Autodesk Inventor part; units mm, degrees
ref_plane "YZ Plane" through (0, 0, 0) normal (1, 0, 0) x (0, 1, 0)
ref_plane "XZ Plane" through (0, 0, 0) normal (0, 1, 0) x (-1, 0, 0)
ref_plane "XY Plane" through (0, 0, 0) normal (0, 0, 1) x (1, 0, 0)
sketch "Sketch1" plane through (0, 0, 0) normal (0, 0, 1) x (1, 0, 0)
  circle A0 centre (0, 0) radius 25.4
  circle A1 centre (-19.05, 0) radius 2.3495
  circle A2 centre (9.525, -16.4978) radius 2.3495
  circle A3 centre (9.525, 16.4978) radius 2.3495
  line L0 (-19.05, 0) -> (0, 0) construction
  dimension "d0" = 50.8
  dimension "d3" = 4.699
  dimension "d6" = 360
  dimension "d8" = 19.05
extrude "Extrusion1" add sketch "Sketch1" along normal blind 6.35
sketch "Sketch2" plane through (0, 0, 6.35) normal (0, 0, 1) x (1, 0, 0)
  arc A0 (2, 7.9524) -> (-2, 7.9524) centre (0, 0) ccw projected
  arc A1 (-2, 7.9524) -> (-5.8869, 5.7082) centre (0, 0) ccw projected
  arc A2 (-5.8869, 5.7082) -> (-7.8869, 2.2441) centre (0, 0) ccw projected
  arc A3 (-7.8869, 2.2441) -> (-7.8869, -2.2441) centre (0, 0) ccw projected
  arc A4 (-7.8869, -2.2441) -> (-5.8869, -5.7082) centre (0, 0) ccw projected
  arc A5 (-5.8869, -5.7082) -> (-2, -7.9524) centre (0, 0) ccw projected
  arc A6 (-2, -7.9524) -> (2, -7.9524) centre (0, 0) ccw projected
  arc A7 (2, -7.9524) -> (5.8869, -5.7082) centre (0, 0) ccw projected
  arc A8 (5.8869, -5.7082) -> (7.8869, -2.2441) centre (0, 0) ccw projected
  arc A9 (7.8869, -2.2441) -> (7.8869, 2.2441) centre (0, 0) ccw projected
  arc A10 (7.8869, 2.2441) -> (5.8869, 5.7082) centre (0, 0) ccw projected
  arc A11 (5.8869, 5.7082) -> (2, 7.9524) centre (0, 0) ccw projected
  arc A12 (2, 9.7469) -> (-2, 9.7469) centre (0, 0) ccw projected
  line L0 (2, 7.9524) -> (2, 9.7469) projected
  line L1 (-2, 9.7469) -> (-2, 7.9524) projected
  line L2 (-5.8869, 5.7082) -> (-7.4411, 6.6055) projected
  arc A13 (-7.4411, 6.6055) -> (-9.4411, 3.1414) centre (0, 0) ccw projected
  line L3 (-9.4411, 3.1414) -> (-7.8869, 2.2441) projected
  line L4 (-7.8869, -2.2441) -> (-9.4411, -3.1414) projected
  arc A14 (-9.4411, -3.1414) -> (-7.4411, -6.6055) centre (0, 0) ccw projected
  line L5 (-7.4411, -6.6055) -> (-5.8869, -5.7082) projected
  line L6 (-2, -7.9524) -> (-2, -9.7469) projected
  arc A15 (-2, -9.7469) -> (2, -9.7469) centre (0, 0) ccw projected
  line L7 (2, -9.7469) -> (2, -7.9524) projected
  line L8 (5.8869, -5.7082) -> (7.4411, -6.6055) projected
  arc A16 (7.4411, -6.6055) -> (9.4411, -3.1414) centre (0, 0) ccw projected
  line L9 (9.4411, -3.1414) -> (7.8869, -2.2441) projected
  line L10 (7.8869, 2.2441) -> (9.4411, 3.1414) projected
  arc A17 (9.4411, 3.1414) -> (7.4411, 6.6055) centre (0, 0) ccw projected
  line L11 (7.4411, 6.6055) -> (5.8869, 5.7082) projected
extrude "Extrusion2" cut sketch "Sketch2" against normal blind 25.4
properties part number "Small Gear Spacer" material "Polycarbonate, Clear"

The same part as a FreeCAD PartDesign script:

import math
import FreeCAD as App
import Part
import Sketcher

V = App.Vector
Q = App.Units.Quantity

doc = App.newDocument("Part")
body = doc.addObject("PartDesign::Body", "Body")

# Sketch on XY plane
sketch1 = body.newObject("Sketcher::SketchObject", "Sketch")
sketch1.AttachmentSupport = (doc.getObject("XY_Plane"), [""])
sketch1.MapMode = "FlatFace"
sketch1.addGeometry(Part.Circle(V(0, 0, 0), V(0, 0, 1), 25.4), False)
sketch1.addGeometry(Part.Circle(V(-19.1, 0, 0), V(0, 0, 1), 2.3), False)
sketch1.addGeometry(Part.Circle(V(9.5, -16.5, 0), V(0, 0, 1), 2.3), False)
sketch1.addGeometry(Part.Circle(V(9.5, 16.5, 0), V(0, 0, 1), 2.3), False)
sketch1.addConstraint(Sketcher.Constraint("Coincident", 0, 3, -1, 1))
sketch1.addConstraint(Sketcher.Constraint("Equal", 1, 2))
sketch1.addConstraint(Sketcher.Constraint("Equal", 2, 3))
sketch1.addConstraint(Sketcher.Constraint("Symmetric", 2, 3, 3, 3, -1))
sketch1.addConstraint(Sketcher.Constraint("PointOnObject", 1, 3, -1))
sketch1.addConstraint(Sketcher.Constraint("Diameter", 0, Q("2 in")))
sketch1.addConstraint(Sketcher.Constraint("Diameter", 1, Q("0.185 in")))
sketch1.addConstraint(Sketcher.Constraint("DistanceX", 1, 3, -1, 1, Q("0.75 in")))
sketch1.addConstraint(Sketcher.Constraint("DistanceX", -1, 1, 2, 3, Q("0.375 in")))
sketch1.addConstraint(Sketcher.Constraint("DistanceY", 2, 3, -1, 1, Q("16.4978 mm")))
pad1 = body.newObject("PartDesign::Pad", "Pad")
pad1.Profile = sketch1
pad1.Length = Q("0.25 in")

# Sketch on XY plane
sketch2 = body.newObject("Sketcher::SketchObject", "Sketch001")
sketch2.AttachmentSupport = (doc.getObject("XY_Plane"), [""])
sketch2.MapMode = "FlatFace"
sketch2.AttachmentOffset = App.Placement(V(0, 0, 0.25 * 25.4), App.Rotation())
sketch2.addGeometry(Part.ArcOfCircle(Part.Circle(V(-0.000757, -0.000971, 0), V(0, 0, 1), 8.201167), math.radians(44.118234), math.radians(75.879616)), False)
sketch2.addGeometry(Part.LineSegment(V(2, 7.9524, 0), V(2, 9.7469, 0)), False)
sketch2.addGeometry(Part.ArcOfCircle(Part.Circle(V(0, 0, 0), V(0, 0, 1), 9.949978), math.radians(78.404238), math.radians(101.595762)), False)
sketch2.addGeometry(Part.LineSegment(V(-2, 9.7469, 0), V(-2, 7.9524, 0)), False)
sketch2.addGeometry(Part.ArcOfCircle(Part.Circle(V(-0.000462, 0.001141, 0), V(0, 0, 1), 8.198821), math.radians(104.115721), math.radians(135.886429)), False)
sketch2.addGeometry(Part.LineSegment(V(-5.8869, 5.7082, 0), V(-7.4411, 6.6055, 0)), False)
sketch2.addGeometry(Part.ArcOfCircle(Part.Circle(V(0, 0, 0), V(0, 0, 1), 9.950013), math.radians(138.404382), math.radians(161.595825)), False)
sketch2.addGeometry(Part.LineSegment(V(-9.4411, 3.1414, 0), V(-7.8869, 2.2441, 0)), False)
sketch2.addGeometry(Part.ArcOfCircle(Part.Circle(V(0, 0, 0), V(0, 0, 1), 8.19995), math.radians(164.117086), math.radians(195.882914)), False)
sketch2.addGeometry(Part.LineSegment(V(-7.8869, -2.2441, 0), V(-9.4411, -3.1414, 0)), False)
sketch2.addGeometry(Part.ArcOfCircle(Part.Circle(V(0, 0, 0), V(0, 0, 1), 9.949978), math.radians(-161.595825), math.radians(-138.404382)), False)
sketch2.addGeometry(Part.LineSegment(V(-7.4411, -6.6055, 0), V(-5.8869, -5.7082, 0)), False)
sketch2.addGeometry(Part.ArcOfCircle(Part.Circle(V(0.000757, 0.000971, 0), V(0, 0, 1), 8.201167), math.radians(-135.881766), math.radians(-104.120384)), False)
sketch2.addGeometry(Part.LineSegment(V(-2, -7.9524, 0), V(-2, -9.7469, 0)), False)
sketch2.addGeometry(Part.ArcOfCircle(Part.Circle(V(0, 0, 0), V(0, 0, 1), 9.949978), math.radians(-101.595762), math.radians(-78.404238)), False)
sketch2.addGeometry(Part.LineSegment(V(2, -9.7469, 0), V(2, -7.9524, 0)), False)
sketch2.addGeometry(Part.ArcOfCircle(Part.Circle(V(0.000462, -0.001141, 0), V(0, 0, 1), 8.198821), math.radians(-75.884279), math.radians(-44.113571)), False)
sketch2.addGeometry(Part.LineSegment(V(5.8869, -5.7082, 0), V(7.4411, -6.6055, 0)), False)
sketch2.addGeometry(Part.ArcOfCircle(Part.Circle(V(0, 0, 0), V(0, 0, 1), 9.950013), math.radians(-41.595618), math.radians(-18.404175)), False)
sketch2.addGeometry(Part.LineSegment(V(9.4411, -3.1414, 0), V(7.8869, -2.2441, 0)), False)
sketch2.addGeometry(Part.ArcOfCircle(Part.Circle(V(0, 0, 0), V(0, 0, 1), 8.19995), math.radians(-15.882914), math.radians(15.882914)), False)
sketch2.addGeometry(Part.LineSegment(V(7.8869, 2.2441, 0), V(9.4411, 3.1414, 0)), False)
sketch2.addGeometry(Part.ArcOfCircle(Part.Circle(V(0, 0, 0), V(0, 0, 1), 9.949978), math.radians(18.404175), math.radians(41.595618)), False)
sketch2.addGeometry(Part.LineSegment(V(7.4411, 6.6055, 0), V(5.8869, 5.7082, 0)), False)
sketch2.addConstraint(Sketcher.Constraint("Coincident", 0, 2, 1, 1))
sketch2.addConstraint(Sketcher.Constraint("Coincident", 1, 2, 2, 1))
sketch2.addConstraint(Sketcher.Constraint("Coincident", 2, 2, 3, 1))
sketch2.addConstraint(Sketcher.Constraint("Coincident", 3, 2, 4, 1))
sketch2.addConstraint(Sketcher.Constraint("Coincident", 4, 2, 5, 1))
sketch2.addConstraint(Sketcher.Constraint("Coincident", 5, 2, 6, 1))
sketch2.addConstraint(Sketcher.Constraint("Coincident", 6, 2, 7, 1))
sketch2.addConstraint(Sketcher.Constraint("Coincident", 7, 2, 8, 1))
sketch2.addConstraint(Sketcher.Constraint("Coincident", 8, 2, 9, 1))
sketch2.addConstraint(Sketcher.Constraint("Coincident", 9, 2, 10, 1))
sketch2.addConstraint(Sketcher.Constraint("Coincident", 10, 2, 11, 1))
sketch2.addConstraint(Sketcher.Constraint("Coincident", 11, 2, 12, 1))
sketch2.addConstraint(Sketcher.Constraint("Coincident", 12, 2, 13, 1))
sketch2.addConstraint(Sketcher.Constraint("Coincident", 13, 2, 14, 1))
sketch2.addConstraint(Sketcher.Constraint("Coincident", 14, 2, 15, 1))
sketch2.addConstraint(Sketcher.Constraint("Coincident", 15, 2, 16, 1))
sketch2.addConstraint(Sketcher.Constraint("Coincident", 16, 2, 17, 1))
sketch2.addConstraint(Sketcher.Constraint("Coincident", 17, 2, 18, 1))
sketch2.addConstraint(Sketcher.Constraint("Coincident", 18, 2, 19, 1))
sketch2.addConstraint(Sketcher.Constraint("Coincident", 19, 2, 20, 1))
sketch2.addConstraint(Sketcher.Constraint("Coincident", 20, 2, 21, 1))
sketch2.addConstraint(Sketcher.Constraint("Coincident", 21, 2, 22, 1))
sketch2.addConstraint(Sketcher.Constraint("Coincident", 22, 2, 23, 1))
sketch2.addConstraint(Sketcher.Constraint("Coincident", 23, 2, 0, 1))
sketch2.addConstraint(Sketcher.Constraint("Vertical", 1))
sketch2.addConstraint(Sketcher.Constraint("Vertical", 3))
sketch2.addConstraint(Sketcher.Constraint("Vertical", 13))
sketch2.addConstraint(Sketcher.Constraint("Vertical", 15))
sketch2.addConstraint(Sketcher.Constraint("Coincident", 2, 3, -1, 1))
sketch2.addConstraint(Sketcher.Constraint("Coincident", 6, 3, -1, 1))
sketch2.addConstraint(Sketcher.Constraint("Coincident", 8, 3, -1, 1))
sketch2.addConstraint(Sketcher.Constraint("Coincident", 10, 3, -1, 1))
sketch2.addConstraint(Sketcher.Constraint("Coincident", 14, 3, -1, 1))
sketch2.addConstraint(Sketcher.Constraint("Coincident", 18, 3, -1, 1))
sketch2.addConstraint(Sketcher.Constraint("Coincident", 20, 3, -1, 1))
sketch2.addConstraint(Sketcher.Constraint("Coincident", 22, 3, -1, 1))
sketch2.addConstraint(Sketcher.Constraint("DistanceX", 0, 3, 4, 3, Q("0 in")))
sketch2.addConstraint(Sketcher.Constraint("DistanceY", 12, 3, 4, 3, Q("0 in")))
sketch2.addConstraint(Sketcher.Constraint("Radius", 4, Q("0.3228 in")))
sketch2.addConstraint(Sketcher.Constraint("Radius", 16, Q("0.3228 in")))
sketch2.addConstraint(Sketcher.Constraint("Radius", 0, Q("8.2012 mm")))
sketch2.addConstraint(Sketcher.Constraint("Radius", 2, Q("9.95 mm")))
sketch2.addConstraint(Sketcher.Constraint("Radius", 6, Q("9.95 mm")))
sketch2.addConstraint(Sketcher.Constraint("Radius", 8, Q("8.2 mm")))
sketch2.addConstraint(Sketcher.Constraint("Radius", 10, Q("9.95 mm")))
sketch2.addConstraint(Sketcher.Constraint("Radius", 12, Q("8.2012 mm")))
sketch2.addConstraint(Sketcher.Constraint("Radius", 14, Q("9.95 mm")))
sketch2.addConstraint(Sketcher.Constraint("Radius", 18, Q("9.95 mm")))
sketch2.addConstraint(Sketcher.Constraint("Radius", 20, Q("8.2 mm")))
sketch2.addConstraint(Sketcher.Constraint("Radius", 22, Q("9.95 mm")))
sketch2.addConstraint(Sketcher.Constraint("DistanceY", 4, 2, 2, 2, Q("0.159 in")))
sketch2.addConstraint(Sketcher.Constraint("DistanceY", 13, 2, 11, 2, Q("0.159 in")))
sketch2.addConstraint(Sketcher.Constraint("DistanceY", 14, 2, 11, 2, Q("0.159 in")))
sketch2.addConstraint(Sketcher.Constraint("DistanceY", 14, 2, 16, 2, Q("0.159 in")))
sketch2.addConstraint(Sketcher.Constraint("DistanceY", 23, 2, 1, 2, Q("0.159 in")))
sketch2.addConstraint(Sketcher.Constraint("DistanceY", 1, 1, 1, 2, Q("1.7945 mm")))
sketch2.addConstraint(Sketcher.Constraint("DistanceY", 3, 2, 3, 1, Q("1.7945 mm")))
sketch2.addConstraint(Sketcher.Constraint("DistanceY", 13, 2, 13, 1, Q("1.7945 mm")))
sketch2.addConstraint(Sketcher.Constraint("DistanceY", 15, 1, 15, 2, Q("1.7945 mm")))
sketch2.addConstraint(Sketcher.Constraint("DistanceX", 6, 2, -1, 1, Q("0.3717 in")))
sketch2.addConstraint(Sketcher.Constraint("DistanceX", 7, 2, -1, 1, Q("0.3105 in")))
sketch2.addConstraint(Sketcher.Constraint("DistanceX", 8, 2, -1, 1, Q("0.3105 in")))
sketch2.addConstraint(Sketcher.Constraint("DistanceX", 9, 2, -1, 1, Q("0.3717 in")))
sketch2.addConstraint(Sketcher.Constraint("DistanceX", -1, 1, 18, 2, Q("0.3717 in")))
sketch2.addConstraint(Sketcher.Constraint("DistanceX", -1, 1, 19, 2, Q("0.3105 in")))
sketch2.addConstraint(Sketcher.Constraint("DistanceX", -1, 1, 20, 2, Q("0.3105 in")))
sketch2.addConstraint(Sketcher.Constraint("DistanceX", -1, 1, 21, 2, Q("0.3717 in")))
sketch2.addConstraint(Sketcher.Constraint("DistanceX", 12, 3, 0, 2, Q("0.0787 in")))
sketch2.addConstraint(Sketcher.Constraint("DistanceY", 12, 3, 1, 2, Q("0.3837 in")))
sketch2.addConstraint(Sketcher.Constraint("DistanceY", 4, 3, 2, 2, Q("0.3837 in")))
sketch2.addConstraint(Sketcher.Constraint("DistanceX", 4, 2, 12, 3, Q("0.2318 in")))
sketch2.addConstraint(Sketcher.Constraint("DistanceX", 5, 2, 4, 2, Q("0.0612 in")))
sketch2.addConstraint(Sketcher.Constraint("DistanceY", 10, 2, 8, 2, Q("0.1717 in")))
sketch2.addConstraint(Sketcher.Constraint("DistanceY", 14, 2, 16, 3, Q("0.3837 in")))
sketch2.addConstraint(Sketcher.Constraint("DistanceX", 16, 2, 17, 2, Q("0.0612 in")))
sketch2.addConstraint(Sketcher.Constraint("DistanceY", 20, 2, 22, 2, Q("0.1717 in")))
pocket1 = body.newObject("PartDesign::Pocket", "Pocket")
pocket1.Profile = sketch2
pocket1.Length = Q("1 in")

doc.recompute()
